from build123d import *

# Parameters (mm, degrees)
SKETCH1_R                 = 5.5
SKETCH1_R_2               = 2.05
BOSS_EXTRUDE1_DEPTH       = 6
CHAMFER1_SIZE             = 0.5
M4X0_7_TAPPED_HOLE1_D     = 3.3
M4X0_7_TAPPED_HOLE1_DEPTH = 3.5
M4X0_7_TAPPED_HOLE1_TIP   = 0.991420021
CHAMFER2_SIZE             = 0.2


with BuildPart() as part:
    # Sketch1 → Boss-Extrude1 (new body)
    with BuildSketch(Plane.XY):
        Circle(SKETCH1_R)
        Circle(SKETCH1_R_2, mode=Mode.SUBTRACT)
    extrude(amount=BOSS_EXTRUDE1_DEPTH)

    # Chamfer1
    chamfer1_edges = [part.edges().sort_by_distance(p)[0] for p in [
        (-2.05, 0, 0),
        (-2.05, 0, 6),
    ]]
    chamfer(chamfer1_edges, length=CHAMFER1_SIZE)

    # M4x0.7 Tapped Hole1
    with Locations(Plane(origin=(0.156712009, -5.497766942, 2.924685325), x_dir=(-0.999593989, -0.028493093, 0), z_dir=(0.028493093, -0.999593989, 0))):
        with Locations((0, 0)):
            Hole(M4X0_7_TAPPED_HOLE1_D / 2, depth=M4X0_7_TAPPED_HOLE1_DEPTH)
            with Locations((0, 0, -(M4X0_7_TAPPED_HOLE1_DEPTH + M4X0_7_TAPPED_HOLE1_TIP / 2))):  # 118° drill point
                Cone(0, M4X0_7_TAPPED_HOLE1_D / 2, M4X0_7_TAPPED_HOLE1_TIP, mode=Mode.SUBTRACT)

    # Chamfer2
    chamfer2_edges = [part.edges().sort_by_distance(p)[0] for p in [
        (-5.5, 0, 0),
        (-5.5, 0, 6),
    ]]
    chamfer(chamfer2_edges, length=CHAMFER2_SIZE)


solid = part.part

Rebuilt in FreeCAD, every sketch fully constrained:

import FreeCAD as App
import Part
import Sketcher

V = App.Vector
Q = App.Units.Quantity


def edges_at(feature, points):
    """Names of the edges that pass closest to the given points."""
    edges = feature.Shape.Edges
    near = lambda p: min(range(len(edges)), key=lambda i: edges[i].distToShape(Part.Vertex(*p))[0])
    return sorted({f"Edge{near(p) + 1}" for p in points})

doc = App.newDocument("Part")
body = doc.addObject("PartDesign::Body", "Body")

# Sketch on XY plane
sketch1 = body.newObject("Sketcher::SketchObject", "Sketch")
sketch1.AttachmentSupport = (doc.getObject("XY_Plane"), [""])
sketch1.MapMode = "FlatFace"
sketch1.addGeometry([
    Part.Circle(V(0, 0, 0), V(0, 0, 1), 5.5),
    Part.Circle(V(0, 0, 0), V(0, 0, 1), 2.05),
], False)
sketch1.addConstraint([
    Sketcher.Constraint("Coincident", 0, 3, -1, 1),
    Sketcher.Constraint("Coincident", 1, 3, -1, 1),
    Sketcher.Constraint("Diameter", 0, Q("11 mm")),
    Sketcher.Constraint("Diameter", 1, Q("4.1 mm")),
])
pad1 = body.newObject("PartDesign::Pad", "Pad")
pad1.Profile = sketch1
pad1.Length = 6
doc.recompute()

chamfer = body.newObject("PartDesign::Chamfer", "Chamfer")
chamfer.Base = (pad1, edges_at(pad1, [(-2.05, 0, 0), (-2.05, 0, 6)]))
chamfer.Size = 0.5

# Sketch on an angled plane
sketch2 = body.newObject("Sketcher::SketchObject", "Sketch001")
sketch2.Placement = App.Placement(V(0.156712, -5.497767, 0), App.Rotation(V(-0.999593989, -0.028493093, 0), V(0, 0, -0.999999999), V(0.028493093, -0.999593989, 0), "ZXY"))
sketch2.addGeometry(Part.Circle(V(0, -2.924685, 0), V(0, 0, 1), 1.65), False)
sketch2.addConstraint([
    Sketcher.Constraint("PointOnObject", 0, 3, -2),
    Sketcher.Constraint("Diameter", 0, Q("3.3 mm")),
    Sketcher.Constraint("DistanceY", 0, 3, -1, 1, Q("2.924685 mm")),
])
doc.recompute()
hole = body.newObject("PartDesign::Hole", "Hole")
hole.Profile = sketch2
hole.ThreadType = "None"
hole.Diameter = 3.3
hole.DepthType = "Dimension"
hole.Depth = 3.5
hole.DrillPoint = "Angled"
hole.DrillPointAngle = 118
doc.recompute()

chamfer2 = body.newObject("PartDesign::Chamfer", "Chamfer001")
chamfer2.Base = (hole, edges_at(hole, [(-5.5, 0, 0), (-5.5, 0, 6)]))
chamfer2.Size = 0.2

doc.recompute()
